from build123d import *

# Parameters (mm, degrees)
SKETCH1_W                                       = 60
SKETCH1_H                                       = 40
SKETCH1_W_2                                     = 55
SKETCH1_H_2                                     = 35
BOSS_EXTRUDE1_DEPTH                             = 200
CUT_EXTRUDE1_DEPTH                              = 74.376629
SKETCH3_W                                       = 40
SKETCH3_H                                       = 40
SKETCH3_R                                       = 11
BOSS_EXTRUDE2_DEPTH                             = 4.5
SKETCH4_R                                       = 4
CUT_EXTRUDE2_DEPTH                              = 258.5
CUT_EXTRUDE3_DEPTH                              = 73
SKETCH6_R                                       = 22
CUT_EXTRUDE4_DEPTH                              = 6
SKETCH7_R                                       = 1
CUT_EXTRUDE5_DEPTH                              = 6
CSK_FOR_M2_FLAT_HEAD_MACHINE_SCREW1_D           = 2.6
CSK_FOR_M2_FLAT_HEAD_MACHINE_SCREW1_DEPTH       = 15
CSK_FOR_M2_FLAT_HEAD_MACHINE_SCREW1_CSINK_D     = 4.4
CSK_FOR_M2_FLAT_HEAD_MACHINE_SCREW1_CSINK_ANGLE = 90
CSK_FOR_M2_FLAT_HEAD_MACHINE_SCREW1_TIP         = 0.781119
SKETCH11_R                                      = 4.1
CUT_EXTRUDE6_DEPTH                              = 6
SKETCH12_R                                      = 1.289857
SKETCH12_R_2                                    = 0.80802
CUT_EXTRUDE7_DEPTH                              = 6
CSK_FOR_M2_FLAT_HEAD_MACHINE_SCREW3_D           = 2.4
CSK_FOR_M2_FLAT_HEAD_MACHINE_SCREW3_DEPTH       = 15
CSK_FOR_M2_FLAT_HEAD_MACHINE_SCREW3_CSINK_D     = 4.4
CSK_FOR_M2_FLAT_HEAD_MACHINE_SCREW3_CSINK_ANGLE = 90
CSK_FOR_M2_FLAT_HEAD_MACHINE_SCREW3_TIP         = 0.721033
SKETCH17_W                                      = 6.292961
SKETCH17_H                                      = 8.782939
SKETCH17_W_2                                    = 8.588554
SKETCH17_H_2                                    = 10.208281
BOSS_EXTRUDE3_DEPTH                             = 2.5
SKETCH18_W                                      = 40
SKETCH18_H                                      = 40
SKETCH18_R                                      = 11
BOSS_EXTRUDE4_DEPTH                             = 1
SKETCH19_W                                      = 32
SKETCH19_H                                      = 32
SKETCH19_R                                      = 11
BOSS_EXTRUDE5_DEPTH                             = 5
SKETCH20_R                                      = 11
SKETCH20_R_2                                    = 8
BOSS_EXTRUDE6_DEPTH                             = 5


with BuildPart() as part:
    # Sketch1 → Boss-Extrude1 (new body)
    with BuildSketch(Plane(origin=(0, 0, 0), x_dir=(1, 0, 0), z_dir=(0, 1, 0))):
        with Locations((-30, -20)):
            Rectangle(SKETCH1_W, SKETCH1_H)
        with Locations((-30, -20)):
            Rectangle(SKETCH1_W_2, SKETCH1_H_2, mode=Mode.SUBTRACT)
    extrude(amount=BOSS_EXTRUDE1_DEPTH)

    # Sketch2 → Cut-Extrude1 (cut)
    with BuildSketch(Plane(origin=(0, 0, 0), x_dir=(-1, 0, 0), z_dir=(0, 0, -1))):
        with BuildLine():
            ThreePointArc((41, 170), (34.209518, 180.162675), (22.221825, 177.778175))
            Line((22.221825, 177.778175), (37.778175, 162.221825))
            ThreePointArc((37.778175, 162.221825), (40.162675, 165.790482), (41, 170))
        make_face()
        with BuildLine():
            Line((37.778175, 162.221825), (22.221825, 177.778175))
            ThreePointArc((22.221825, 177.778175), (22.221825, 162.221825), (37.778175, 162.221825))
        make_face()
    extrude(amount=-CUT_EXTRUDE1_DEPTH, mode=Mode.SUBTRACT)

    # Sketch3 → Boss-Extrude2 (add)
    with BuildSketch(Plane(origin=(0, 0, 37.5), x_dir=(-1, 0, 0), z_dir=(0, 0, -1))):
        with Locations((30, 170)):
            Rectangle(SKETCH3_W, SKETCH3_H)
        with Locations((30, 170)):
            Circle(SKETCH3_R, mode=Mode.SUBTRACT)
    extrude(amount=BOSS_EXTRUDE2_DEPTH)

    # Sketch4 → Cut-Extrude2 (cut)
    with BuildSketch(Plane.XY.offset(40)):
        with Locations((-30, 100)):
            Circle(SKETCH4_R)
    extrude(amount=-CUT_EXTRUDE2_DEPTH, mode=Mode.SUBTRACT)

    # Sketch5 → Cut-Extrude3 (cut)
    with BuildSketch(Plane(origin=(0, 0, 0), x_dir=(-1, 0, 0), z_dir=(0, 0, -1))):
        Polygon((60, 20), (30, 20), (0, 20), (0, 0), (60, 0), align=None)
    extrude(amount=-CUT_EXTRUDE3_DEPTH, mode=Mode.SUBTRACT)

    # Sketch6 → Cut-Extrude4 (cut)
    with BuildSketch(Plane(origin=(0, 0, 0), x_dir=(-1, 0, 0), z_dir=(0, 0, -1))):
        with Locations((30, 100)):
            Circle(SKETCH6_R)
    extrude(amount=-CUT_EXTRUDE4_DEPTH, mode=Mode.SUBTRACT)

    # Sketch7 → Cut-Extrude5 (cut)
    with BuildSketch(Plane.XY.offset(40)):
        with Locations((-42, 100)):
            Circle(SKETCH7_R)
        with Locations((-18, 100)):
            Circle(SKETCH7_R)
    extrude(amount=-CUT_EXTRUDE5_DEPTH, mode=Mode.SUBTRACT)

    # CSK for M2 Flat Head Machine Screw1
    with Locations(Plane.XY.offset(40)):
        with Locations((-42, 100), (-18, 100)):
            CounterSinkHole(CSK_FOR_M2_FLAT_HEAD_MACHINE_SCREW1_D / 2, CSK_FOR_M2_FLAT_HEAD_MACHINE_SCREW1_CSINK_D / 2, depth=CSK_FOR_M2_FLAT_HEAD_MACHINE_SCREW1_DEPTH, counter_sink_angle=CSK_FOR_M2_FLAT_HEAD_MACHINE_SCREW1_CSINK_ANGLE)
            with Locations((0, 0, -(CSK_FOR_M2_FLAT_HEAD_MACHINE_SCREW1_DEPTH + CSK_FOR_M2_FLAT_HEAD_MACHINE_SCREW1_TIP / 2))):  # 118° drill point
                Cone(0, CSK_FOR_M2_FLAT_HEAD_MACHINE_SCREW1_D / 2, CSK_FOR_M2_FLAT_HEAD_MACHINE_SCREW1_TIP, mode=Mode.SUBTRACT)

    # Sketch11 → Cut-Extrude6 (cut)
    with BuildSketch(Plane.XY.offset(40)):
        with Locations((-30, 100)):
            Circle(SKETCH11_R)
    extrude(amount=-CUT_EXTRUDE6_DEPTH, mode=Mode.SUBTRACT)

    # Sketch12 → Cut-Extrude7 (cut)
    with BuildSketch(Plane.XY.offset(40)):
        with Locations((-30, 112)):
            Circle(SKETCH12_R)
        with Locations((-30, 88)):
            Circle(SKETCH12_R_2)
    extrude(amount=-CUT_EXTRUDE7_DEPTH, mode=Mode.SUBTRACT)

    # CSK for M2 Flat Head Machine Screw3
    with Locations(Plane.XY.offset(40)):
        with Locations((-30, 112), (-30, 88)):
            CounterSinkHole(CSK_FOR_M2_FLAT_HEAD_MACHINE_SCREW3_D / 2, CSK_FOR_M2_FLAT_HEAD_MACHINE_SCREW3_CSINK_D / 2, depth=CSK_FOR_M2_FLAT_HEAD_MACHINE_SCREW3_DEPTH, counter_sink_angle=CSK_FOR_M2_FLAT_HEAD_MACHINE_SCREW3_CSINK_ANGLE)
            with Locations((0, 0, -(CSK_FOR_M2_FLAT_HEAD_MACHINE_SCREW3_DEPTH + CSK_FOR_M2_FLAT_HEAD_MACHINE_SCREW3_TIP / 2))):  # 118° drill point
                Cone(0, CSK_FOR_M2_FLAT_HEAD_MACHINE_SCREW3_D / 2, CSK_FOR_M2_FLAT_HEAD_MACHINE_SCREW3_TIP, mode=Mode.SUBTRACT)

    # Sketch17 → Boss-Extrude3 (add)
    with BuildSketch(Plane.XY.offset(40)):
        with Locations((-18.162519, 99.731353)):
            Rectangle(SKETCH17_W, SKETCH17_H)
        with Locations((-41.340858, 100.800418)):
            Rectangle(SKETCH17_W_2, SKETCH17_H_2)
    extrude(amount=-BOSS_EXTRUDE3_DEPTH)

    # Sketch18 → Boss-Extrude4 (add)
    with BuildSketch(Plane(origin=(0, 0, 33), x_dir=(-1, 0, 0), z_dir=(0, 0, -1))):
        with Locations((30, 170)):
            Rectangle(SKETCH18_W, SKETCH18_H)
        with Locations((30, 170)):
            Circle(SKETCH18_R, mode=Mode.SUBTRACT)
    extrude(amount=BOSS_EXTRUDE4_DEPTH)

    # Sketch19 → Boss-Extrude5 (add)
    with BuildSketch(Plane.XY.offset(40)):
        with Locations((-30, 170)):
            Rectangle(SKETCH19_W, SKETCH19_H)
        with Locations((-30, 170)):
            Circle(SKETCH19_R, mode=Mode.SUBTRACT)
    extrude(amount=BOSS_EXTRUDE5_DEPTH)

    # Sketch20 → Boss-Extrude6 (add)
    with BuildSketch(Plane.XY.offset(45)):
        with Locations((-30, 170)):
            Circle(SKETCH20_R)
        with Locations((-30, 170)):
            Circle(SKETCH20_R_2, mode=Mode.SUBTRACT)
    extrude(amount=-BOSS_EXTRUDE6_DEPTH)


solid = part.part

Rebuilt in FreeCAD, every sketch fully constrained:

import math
import FreeCAD as App
import Part
import Sketcher

doc = App.newDocument("Part")
body = doc.addObject("PartDesign::Body", "Body")

sketch1 = doc.addObject("Sketcher::SketchObject", "Sketch")
body.addObject(sketch1)
sketch1.AttachmentSupport = (doc.XZ_Plane, [""])
sketch1.MapMode = "FlatFace"
sketch1.addGeometry([
    Part.LineSegment(App.Vector(-60, 0, 0), App.Vector(-60, 40, 0)),
    Part.LineSegment(App.Vector(-60, 40, 0), App.Vector(0, 40, 0)),
    Part.LineSegment(App.Vector(0, 40, 0), App.Vector(0, 0, 0)),
    Part.LineSegment(App.Vector(0, 0, 0), App.Vector(-60, 0, 0)),
    Part.LineSegment(App.Vector(-2, 38, 0), App.Vector(-58, 38, 0)),
    Part.LineSegment(App.Vector(-58, 38, 0), App.Vector(-58, 2, 0)),
    Part.LineSegment(App.Vector(-58, 2, 0), App.Vector(-2, 2, 0)),
    Part.LineSegment(App.Vector(-2, 2, 0), App.Vector(-2, 38, 0)),
], False)
sketch1.addConstraint([
    Sketcher.Constraint("Coincident", 0, 2, 1, 1),
    Sketcher.Constraint("Coincident", 1, 2, 2, 1),
    Sketcher.Constraint("Coincident", 2, 2, 3, 1),
    Sketcher.Constraint("Coincident", 3, 2, 0, 1),
    Sketcher.Constraint("Coincident", 4, 2, 5, 1),
    Sketcher.Constraint("Coincident", 5, 2, 6, 1),
    Sketcher.Constraint("Coincident", 6, 2, 7, 1),
    Sketcher.Constraint("Coincident", 7, 2, 4, 1),
    Sketcher.Constraint("Vertical", 0),
    Sketcher.Constraint("Horizontal", 1),
    Sketcher.Constraint("Vertical", 2),
    Sketcher.Constraint("Horizontal", 3),
    Sketcher.Constraint("Horizontal", 4),
    Sketcher.Constraint("Vertical", 5),
    Sketcher.Constraint("Horizontal", 6),
    Sketcher.Constraint("Vertical", 7),
    Sketcher.Constraint("Coincident", 2, 2, -1, 1),
    Sketcher.Constraint("DistanceX", 1, 1, 1, 2, 60.0),
    Sketcher.Constraint("DistanceX", 4, 2, 4, 1, 55.0),
    Sketcher.Constraint("DistanceY", 0, 1, 0, 2, 40.0),
    Sketcher.Constraint("DistanceY", 5, 2, 5, 1, 35.0),
    Sketcher.Constraint("DistanceX", 4, 2, -1, 1, 57.5),
    Sketcher.Constraint("DistanceY", -1, 1, 4, 2, 37.5),
])
pad1 = doc.addObject("PartDesign::Pad", "Pad")
body.addObject(pad1)
pad1.Profile = sketch1
pad1.Length = 200
pad1.Reversed = True

sketch2 = doc.addObject("Sketcher::SketchObject", "Sketch001")
body.addObject(sketch2)
sketch2.AttachmentSupport = (doc.XY_Plane, [""])
sketch2.MapMode = "FlatFace"
sketch2.addGeometry([
    Part.ArcOfCircle(Part.Circle(App.Vector(-30, 170, 0), App.Vector(0, 0, 1), 11), math.radians(45), math.radians(180)),
    Part.ArcOfCircle(Part.Circle(App.Vector(-30, 170, 0), App.Vector(0, 0, 1), 11), math.radians(-135), math.radians(45)),
    Part.ArcOfCircle(Part.Circle(App.Vector(-30, 170, 0), App.Vector(0, 0, 1), 11), math.radians(180), math.radians(225)),
], False)
sketch2.addConstraint([
    Sketcher.Constraint("Tangent", 0, 1, 1, 2),
    Sketcher.Constraint("Tangent", 1, 1, 2, 2),
    Sketcher.Constraint("Tangent", 2, 1, 0, 2),
    Sketcher.Constraint("Horizontal", 1, 3, 2, 1),
    Sketcher.Constraint("Radius", 0, 11.0),
    Sketcher.Constraint("DistanceX", 0, 3, -1, 1, 30.0),
    Sketcher.Constraint("DistanceY", -1, 1, 0, 3, 170.0),
    Sketcher.Constraint("DistanceX", 1, 1, 0, 1, 15.55635),
    Sketcher.Constraint("DistanceX", 0, 1, -1, 1, 22.221825),
])
pocket1 = doc.addObject("PartDesign::Pocket", "Pocket")
body.addObject(pocket1)
pocket1.Profile = sketch2
pocket1.Length = 74.376629
pocket1.Reversed = True

sketch3 = doc.addObject("Sketcher::SketchObject", "Sketch002")
body.addObject(sketch3)
sketch3.AttachmentSupport = (doc.XY_Plane, [""])
sketch3.MapMode = "FlatFace"
sketch3.AttachmentOffset = App.Placement(App.Vector(0, 0, 37.5), App.Rotation())
sketch3.addGeometry([
    Part.LineSegment(App.Vector(-10, 190, 0), App.Vector(-10, 150, 0)),
    Part.LineSegment(App.Vector(-10, 150, 0), App.Vector(-50, 150, 0)),
    Part.LineSegment(App.Vector(-50, 150, 0), App.Vector(-50, 190, 0)),
    Part.LineSegment(App.Vector(-50, 190, 0), App.Vector(-10, 190, 0)),
    Part.Circle(App.Vector(-30, 170, 0), App.Vector(0, 0, 1), 11),
], False)
sketch3.addConstraint([
    Sketcher.Constraint("Coincident", 0, 2, 1, 1),
    Sketcher.Constraint("Coincident", 1, 2, 2, 1),
    Sketcher.Constraint("Coincident", 2, 2, 3, 1),
    Sketcher.Constraint("Coincident", 3, 2, 0, 1),
    Sketcher.Constraint("Vertical", 0),
    Sketcher.Constraint("Horizontal", 1),
    Sketcher.Constraint("Vertical", 2),
    Sketcher.Constraint("Horizontal", 3),
    Sketcher.Constraint("Equal", 3, 0),
    Sketcher.Constraint("Diameter", 4, 22.0),
    Sketcher.Constraint("DistanceX", 1, 2, 1, 1, 40.0),
    Sketcher.Constraint("DistanceX", 4, 3, -1, 1, 30.0),
    Sketcher.Constraint("DistanceY", -1, 1, 4, 3, 170.0),
    Sketcher.Constraint("DistanceX", 0, 2, -1, 1, 10.0),
    Sketcher.Constraint("DistanceY", -1, 1, 0, 2, 150.0),
])
pad2 = doc.addObject("PartDesign::Pad", "Pad001")
body.addObject(pad2)
pad2.Profile = sketch3
pad2.Length = 4.5
pad2.Reversed = True

sketch4 = doc.addObject("Sketcher::SketchObject", "Sketch003")
body.addObject(sketch4)
sketch4.AttachmentSupport = (doc.XY_Plane, [""])
sketch4.MapMode = "FlatFace"
sketch4.AttachmentOffset = App.Placement(App.Vector(0, 0, 40), App.Rotation())
sketch4.addGeometry(Part.Circle(App.Vector(-30, 100, 0), App.Vector(0, 0, 1), 4), False)
sketch4.addConstraint([
    Sketcher.Constraint("Diameter", 0, 8.0),
    Sketcher.Constraint("DistanceX", 0, 3, -1, 1, 30.0),
    Sketcher.Constraint("DistanceY", -1, 1, 0, 3, 100.0),
])
pocket2 = doc.addObject("PartDesign::Pocket", "Pocket001")
body.addObject(pocket2)
pocket2.Profile = sketch4
pocket2.Length = 258.5

sketch5 = doc.addObject("Sketcher::SketchObject", "Sketch004")
body.addObject(sketch5)
sketch5.AttachmentSupport = (doc.XY_Plane, [""])
sketch5.MapMode = "FlatFace"
sketch5.addGeometry([
    Part.LineSegment(App.Vector(-60, 20, 0), App.Vector(0, 20, 0)),
    Part.LineSegment(App.Vector(0, 20, 0), App.Vector(0, 0, 0)),
    Part.LineSegment(App.Vector(0, 0, 0), App.Vector(-60, 0, 0)),
    Part.LineSegment(App.Vector(-60, 0, 0), App.Vector(-60, 20, 0)),
], False)
sketch5.addConstraint([
    Sketcher.Constraint("Coincident", 0, 2, 1, 1),
    Sketcher.Constraint("Coincident", 1, 2, 2, 1),
    Sketcher.Constraint("Coincident", 2, 2, 3, 1),
    Sketcher.Constraint("Coincident", 3, 2, 0, 1),
    Sketcher.Constraint("Horizontal", 0),
    Sketcher.Constraint("Vertical", 1),
    Sketcher.Constraint("Horizontal", 2),
    Sketcher.Constraint("Vertical", 3),
    Sketcher.Constraint("Coincident", 1, 2, -1, 1),
    Sketcher.Constraint("DistanceX", 0, 1, 0, 2, 60.0),
    Sketcher.Constraint("DistanceY", 1, 2, 1, 1, 20.0),
])
pocket3 = doc.addObject("PartDesign::Pocket", "Pocket002")
body.addObject(pocket3)
pocket3.Profile = sketch5
pocket3.Length = 73
pocket3.Reversed = True

sketch6 = doc.addObject("Sketcher::SketchObject", "Sketch005")
body.addObject(sketch6)
sketch6.AttachmentSupport = (doc.XY_Plane, [""])
sketch6.MapMode = "FlatFace"
sketch6.addGeometry(Part.Circle(App.Vector(-30, 100, 0), App.Vector(0, 0, 1), 22), False)
sketch6.addConstraint([
    Sketcher.Constraint("Diameter", 0, 44.0),
    Sketcher.Constraint("DistanceX", 0, 3, -1, 1, 30.0),
    Sketcher.Constraint("DistanceY", -1, 1, 0, 3, 100.0),
])
pocket4 = doc.addObject("PartDesign::Pocket", "Pocket003")
body.addObject(pocket4)
pocket4.Profile = sketch6
pocket4.Length = 6
pocket4.Reversed = True

sketch7 = doc.addObject("Sketcher::SketchObject", "Sketch006")
body.addObject(sketch7)
sketch7.AttachmentSupport = (doc.XY_Plane, [""])
sketch7.MapMode = "FlatFace"
sketch7.AttachmentOffset = App.Placement(App.Vector(0, 0, 40), App.Rotation())
sketch7.addGeometry([
    Part.Circle(App.Vector(-42, 100, 0), App.Vector(0, 0, 1), 1),
    Part.Circle(App.Vector(-18, 100, 0), App.Vector(0, 0, 1), 1),
], False)
sketch7.addConstraint([
    Sketcher.Constraint("Equal", 0, 1),
    Sketcher.Constraint("Horizontal", 0, 3, 1, 3),
    Sketcher.Constraint("Diameter", 0, 2.0),
    Sketcher.Constraint("DistanceX", 0, 3, -1, 1, 42.0),
    Sketcher.Constraint("DistanceY", -1, 1, 0, 3, 100.0),
    Sketcher.Constraint("DistanceX", 1, 3, -1, 1, 18.0),
])
pocket5 = doc.addObject("PartDesign::Pocket", "Pocket004")
body.addObject(pocket5)
pocket5.Profile = sketch7
pocket5.Length = 6

sketch8 = doc.addObject("Sketcher::SketchObject", "Sketch007")
body.addObject(sketch8)
sketch8.AttachmentSupport = (doc.XY_Plane, [""])
sketch8.MapMode = "FlatFace"
sketch8.AttachmentOffset = App.Placement(App.Vector(0, 0, 40), App.Rotation())
sketch8.addGeometry([
    Part.Circle(App.Vector(-42, 100, 0), App.Vector(0, 0, 1), 1.3),
    Part.Circle(App.Vector(-18, 100, 0), App.Vector(0, 0, 1), 1.3),
], False)
sketch8.addConstraint([
    Sketcher.Constraint("Equal", 0, 1),
    Sketcher.Constraint("Horizontal", 0, 3, 1, 3),
    Sketcher.Constraint("Diameter", 0, 2.6),
    Sketcher.Constraint("DistanceX", 0, 3, -1, 1, 42.0),
    Sketcher.Constraint("DistanceY", -1, 1, 0, 3, 100.0),
    Sketcher.Constraint("DistanceX", 1, 3, -1, 1, 18.0),
])
doc.recompute()
hole = doc.addObject("PartDesign::Hole", "Hole")
body.addObject(hole)
hole.Profile = sketch8
hole.ThreadType = "None"
hole.Diameter = 2.6
hole.DepthType = "Dimension"
hole.Depth = 15
hole.DrillPoint = "Angled"
hole.DrillPointAngle = 118
hole.HoleCutType = "Countersink"
hole.HoleCutDiameter = 4.4
hole.HoleCutCountersinkAngle = 90

sketch9 = doc.addObject("Sketcher::SketchObject", "Sketch008")
body.addObject(sketch9)
sketch9.AttachmentSupport = (doc.XY_Plane, [""])
sketch9.MapMode = "FlatFace"
sketch9.AttachmentOffset = App.Placement(App.Vector(0, 0, 40), App.Rotation())
sketch9.addGeometry(Part.Circle(App.Vector(-30, 100, 0), App.Vector(0, 0, 1), 4.1), False)
sketch9.addConstraint([
    Sketcher.Constraint("Diameter", 0, 8.2),
    Sketcher.Constraint("DistanceX", 0, 3, -1, 1, 30.0),
    Sketcher.Constraint("DistanceY", -1, 1, 0, 3, 100.0),
])
pocket6 = doc.addObject("PartDesign::Pocket", "Pocket005")
body.addObject(pocket6)
pocket6.Profile = sketch9
pocket6.Length = 6

sketch10 = doc.addObject("Sketcher::SketchObject", "Sketch009")
body.addObject(sketch10)
sketch10.AttachmentSupport = (doc.XY_Plane, [""])
sketch10.MapMode = "FlatFace"
sketch10.AttachmentOffset = App.Placement(App.Vector(0, 0, 40), App.Rotation())
sketch10.addGeometry([
    Part.Circle(App.Vector(-30, 112, 0), App.Vector(0, 0, 1), 1.3),
    Part.Circle(App.Vector(-30, 88, 0), App.Vector(0, 0, 1), 0.8),
], False)
sketch10.addConstraint([
    Sketcher.Constraint("Vertical", 0, 3, 1, 3),
    Sketcher.Constraint("DistanceX", 0, 3, -1, 1, 30.0),
    Sketcher.Constraint("DistanceY", -1, 1, 0, 3, 112.0),
    Sketcher.Constraint("DistanceY", -1, 1, 1, 3, 88.0),
    Sketcher.Constraint("Diameter", 1, 1.61604),
    Sketcher.Constraint("Diameter", 0, 2.579714),
])
pocket7 = doc.addObject("PartDesign::Pocket", "Pocket006")
body.addObject(pocket7)
pocket7.Profile = sketch10
pocket7.Length = 6

sketch11 = doc.addObject("Sketcher::SketchObject", "Sketch010")
body.addObject(sketch11)
sketch11.AttachmentSupport = (doc.XY_Plane, [""])
sketch11.MapMode = "FlatFace"
sketch11.AttachmentOffset = App.Placement(App.Vector(0, 0, 40), App.Rotation())
sketch11.addGeometry([
    Part.Circle(App.Vector(-30, 112, 0), App.Vector(0, 0, 1), 1.2),
    Part.Circle(App.Vector(-30, 88, 0), App.Vector(0, 0, 1), 1.2),
], False)
sketch11.addConstraint([
    Sketcher.Constraint("Equal", 0, 1),
    Sketcher.Constraint("Vertical", 0, 3, 1, 3),
    Sketcher.Constraint("Diameter", 0, 2.4),
    Sketcher.Constraint("DistanceX", 0, 3, -1, 1, 30.0),
    Sketcher.Constraint("DistanceY", -1, 1, 0, 3, 112.0),
    Sketcher.Constraint("DistanceY", -1, 1, 1, 3, 88.0),
])
doc.recompute()
hole2 = doc.addObject("PartDesign::Hole", "Hole001")
body.addObject(hole2)
hole2.Profile = sketch11
hole2.ThreadType = "None"
hole2.Diameter = 2.4
hole2.DepthType = "Dimension"
hole2.Depth = 15
hole2.DrillPoint = "Angled"
hole2.DrillPointAngle = 118
hole2.HoleCutType = "Countersink"
hole2.HoleCutDiameter = 4.4
hole2.HoleCutCountersinkAngle = 90

sketch12 = doc.addObject("Sketcher::SketchObject", "Sketch011")
body.addObject(sketch12)
sketch12.AttachmentSupport = (doc.XY_Plane, [""])
sketch12.MapMode = "FlatFace"
sketch12.AttachmentOffset = App.Placement(App.Vector(0, 0, 40), App.Rotation())
sketch12.addGeometry([
    Part.LineSegment(App.Vector(-21, 104, 0), App.Vector(-21, 95, 0)),
    Part.LineSegment(App.Vector(-21, 95, 0), App.Vector(-15, 95, 0)),
    Part.LineSegment(App.Vector(-15, 95, 0), App.Vector(-15, 104, 0)),
    Part.LineSegment(App.Vector(-15, 104, 0), App.Vector(-21, 104, 0)),
    Part.LineSegment(App.Vector(-46, 106, 0), App.Vector(-46, 96, 0)),
    Part.LineSegment(App.Vector(-46, 96, 0), App.Vector(-37, 96, 0)),
    Part.LineSegment(App.Vector(-37, 96, 0), App.Vector(-37, 106, 0)),
    Part.LineSegment(App.Vector(-37, 106, 0), App.Vector(-46, 106, 0)),
], False)
sketch12.addConstraint([
    Sketcher.Constraint("Coincident", 0, 2, 1, 1),
    Sketcher.Constraint("Coincident", 1, 2, 2, 1),
    Sketcher.Constraint("Coincident", 2, 2, 3, 1),
    Sketcher.Constraint("Coincident", 3, 2, 0, 1),
    Sketcher.Constraint("Coincident", 4, 2, 5, 1),
    Sketcher.Constraint("Coincident", 5, 2, 6, 1),
    Sketcher.Constraint("Coincident", 6, 2, 7, 1),
    Sketcher.Constraint("Coincident", 7, 2, 4, 1),
    Sketcher.Constraint("Vertical", 0),
    Sketcher.Constraint("Horizontal", 1),
    Sketcher.Constraint("Vertical", 2),
    Sketcher.Constraint("Horizontal", 3),
    Sketcher.Constraint("Vertical", 4),
    Sketcher.Constraint("Horizontal", 5),
    Sketcher.Constraint("Vertical", 6),
    Sketcher.Constraint("Horizontal", 7),
    Sketcher.Constraint("DistanceX", 0, 2, -1, 1, 21.308999),
    Sketcher.Constraint("DistanceX", 1, 1, 1, 2, 6.292961),
    Sketcher.Constraint("DistanceY", 0, 2, 0, 1, 8.782939),
    Sketcher.Constraint("DistanceY", 4, 2, 4, 1, 10.208281),
    Sketcher.Constraint("DistanceX", 5, 1, 5, 2, 8.588554),
    Sketcher.Constraint("DistanceX", 5, 2, -1, 1, 37.046581),
    Sketcher.Constraint("DistanceY", -1, 1, 6, 2, 105.904558),
    Sketcher.Constraint("DistanceY", -1, 1, 0, 2, 95.339883),
])
pad3 = doc.addObject("PartDesign::Pad", "Pad002")
body.addObject(pad3)
pad3.Profile = sketch12
pad3.Length = 2.5
pad3.Reversed = True

sketch13 = doc.addObject("Sketcher::SketchObject", "Sketch012")
body.addObject(sketch13)
sketch13.AttachmentSupport = (doc.XY_Plane, [""])
sketch13.MapMode = "FlatFace"
sketch13.AttachmentOffset = App.Placement(App.Vector(0, 0, 33), App.Rotation())
sketch13.addGeometry([
    Part.LineSegment(App.Vector(-10, 190, 0), App.Vector(-10, 150, 0)),
    Part.LineSegment(App.Vector(-10, 150, 0), App.Vector(-50, 150, 0)),
    Part.LineSegment(App.Vector(-50, 150, 0), App.Vector(-50, 190, 0)),
    Part.LineSegment(App.Vector(-50, 190, 0), App.Vector(-10, 190, 0)),
    Part.Circle(App.Vector(-30, 170, 0), App.Vector(0, 0, 1), 11),
], False)
sketch13.addConstraint([
    Sketcher.Constraint("Coincident", 0, 2, 1, 1),
    Sketcher.Constraint("Coincident", 1, 2, 2, 1),
    Sketcher.Constraint("Coincident", 2, 2, 3, 1),
    Sketcher.Constraint("Coincident", 3, 2, 0, 1),
    Sketcher.Constraint("Vertical", 0),
    Sketcher.Constraint("Horizontal", 1),
    Sketcher.Constraint("Vertical", 2),
    Sketcher.Constraint("Horizontal", 3),
    Sketcher.Constraint("Equal", 3, 0),
    Sketcher.Constraint("Diameter", 4, 22.0),
    Sketcher.Constraint("DistanceX", 1, 2, 1, 1, 40.0),
    Sketcher.Constraint("DistanceX", 4, 3, -1, 1, 30.0),
    Sketcher.Constraint("DistanceY", -1, 1, 4, 3, 170.0),
    Sketcher.Constraint("DistanceX", 0, 2, -1, 1, 10.0),
    Sketcher.Constraint("DistanceY", -1, 1, 0, 2, 150.0),
])
pad4 = doc.addObject("PartDesign::Pad", "Pad003")
body.addObject(pad4)
pad4.Profile = sketch13
pad4.Length = 1
pad4.Reversed = True

sketch14 = doc.addObject("Sketcher::SketchObject", "Sketch013")
body.addObject(sketch14)
sketch14.AttachmentSupport = (doc.XY_Plane, [""])
sketch14.MapMode = "FlatFace"
sketch14.AttachmentOffset = App.Placement(App.Vector(0, 0, 40), App.Rotation())
sketch14.addGeometry([
    Part.LineSegment(App.Vector(-46, 186, 0), App.Vector(-46, 154, 0)),
    Part.LineSegment(App.Vector(-46, 154, 0), App.Vector(-14, 154, 0)),
    Part.LineSegment(App.Vector(-14, 154, 0), App.Vector(-14, 186, 0)),
    Part.LineSegment(App.Vector(-14, 186, 0), App.Vector(-46, 186, 0)),
    Part.Circle(App.Vector(-30, 170, 0), App.Vector(0, 0, 1), 11),
], False)
sketch14.addConstraint([
    Sketcher.Constraint("Coincident", 0, 2, 1, 1),
    Sketcher.Constraint("Coincident", 1, 2, 2, 1),
    Sketcher.Constraint("Coincident", 2, 2, 3, 1),
    Sketcher.Constraint("Coincident", 3, 2, 0, 1),
    Sketcher.Constraint("Vertical", 0),
    Sketcher.Constraint("Horizontal", 1),
    Sketcher.Constraint("Vertical", 2),
    Sketcher.Constraint("Horizontal", 3),
    Sketcher.Constraint("Equal", 3, 0),
    Sketcher.Constraint("Diameter", 4, 22.0),
    Sketcher.Constraint("DistanceX", 1, 1, 1, 2, 32.0),
    Sketcher.Constraint("DistanceX", 4, 3, -1, 1, 30.0),
    Sketcher.Constraint("DistanceY", -1, 1, 4, 3, 170.0),
    Sketcher.Constraint("DistanceX", 0, 2, -1, 1, 46.0),
    Sketcher.Constraint("DistanceY", -1, 1, 0, 2, 154.0),
])
pad5 = doc.addObject("PartDesign::Pad", "Pad004")
body.addObject(pad5)
pad5.Profile = sketch14
pad5.Length = 5

sketch15 = doc.addObject("Sketcher::SketchObject", "Sketch014")
body.addObject(sketch15)
sketch15.AttachmentSupport = (doc.XY_Plane, [""])
sketch15.MapMode = "FlatFace"
sketch15.AttachmentOffset = App.Placement(App.Vector(0, 0, 45), App.Rotation())
sketch15.addGeometry([
    Part.Circle(App.Vector(-30, 170, 0), App.Vector(0, 0, 1), 11),
    Part.Circle(App.Vector(-30, 170, 0), App.Vector(0, 0, 1), 8),
], False)
sketch15.addConstraint([
    Sketcher.Constraint("Coincident", 1, 3, 0, 3),
    Sketcher.Constraint("Diameter", 0, 22.0),
    Sketcher.Constraint("Diameter", 1, 16.0),
    Sketcher.Constraint("DistanceX", 0, 3, -1, 1, 30.0),
    Sketcher.Constraint("DistanceY", -1, 1, 0, 3, 170.0),
])
pad6 = doc.addObject("PartDesign::Pad", "Pad005")
body.addObject(pad6)
pad6.Profile = sketch15
pad6.Length = 5
pad6.Reversed = True

doc.recompute()
